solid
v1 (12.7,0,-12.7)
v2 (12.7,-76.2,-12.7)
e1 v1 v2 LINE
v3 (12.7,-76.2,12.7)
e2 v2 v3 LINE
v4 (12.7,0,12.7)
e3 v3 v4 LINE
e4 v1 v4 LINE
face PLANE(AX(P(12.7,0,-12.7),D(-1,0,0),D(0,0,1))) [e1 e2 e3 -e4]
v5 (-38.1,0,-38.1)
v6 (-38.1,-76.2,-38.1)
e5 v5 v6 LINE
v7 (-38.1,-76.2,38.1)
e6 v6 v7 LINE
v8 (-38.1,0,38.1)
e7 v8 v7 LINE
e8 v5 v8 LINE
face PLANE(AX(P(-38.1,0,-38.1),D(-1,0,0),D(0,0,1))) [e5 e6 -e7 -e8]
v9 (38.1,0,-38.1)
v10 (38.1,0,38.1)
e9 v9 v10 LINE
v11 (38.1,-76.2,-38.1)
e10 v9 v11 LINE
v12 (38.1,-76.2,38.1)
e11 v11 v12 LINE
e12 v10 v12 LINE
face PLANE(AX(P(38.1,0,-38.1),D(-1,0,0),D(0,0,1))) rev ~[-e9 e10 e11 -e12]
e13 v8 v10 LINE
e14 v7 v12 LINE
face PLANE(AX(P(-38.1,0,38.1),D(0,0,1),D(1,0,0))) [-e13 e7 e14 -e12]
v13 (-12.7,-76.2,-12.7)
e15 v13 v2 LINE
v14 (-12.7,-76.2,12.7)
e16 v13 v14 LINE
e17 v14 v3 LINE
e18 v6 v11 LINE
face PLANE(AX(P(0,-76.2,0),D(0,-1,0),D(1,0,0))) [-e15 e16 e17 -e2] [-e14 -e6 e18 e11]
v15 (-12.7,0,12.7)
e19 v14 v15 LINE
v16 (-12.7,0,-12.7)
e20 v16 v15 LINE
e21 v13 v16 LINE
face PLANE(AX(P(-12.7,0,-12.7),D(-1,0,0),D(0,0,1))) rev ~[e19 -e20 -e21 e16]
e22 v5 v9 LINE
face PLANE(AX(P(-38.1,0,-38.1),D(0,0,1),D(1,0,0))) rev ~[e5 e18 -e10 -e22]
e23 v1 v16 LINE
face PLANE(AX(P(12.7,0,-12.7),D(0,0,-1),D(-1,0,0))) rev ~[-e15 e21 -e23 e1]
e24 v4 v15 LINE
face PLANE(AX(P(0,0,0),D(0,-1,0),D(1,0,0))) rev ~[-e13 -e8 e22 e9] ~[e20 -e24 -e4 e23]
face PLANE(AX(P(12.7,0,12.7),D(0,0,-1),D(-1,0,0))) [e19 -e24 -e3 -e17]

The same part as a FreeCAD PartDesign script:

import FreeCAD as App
import Part
import Sketcher
from FreeCAD import Vector
Q = App.Units.Quantity

doc = App.newDocument("Part")
body = doc.addObject("PartDesign::Body", "Body")

sketch1 = body.newObject("Sketcher::SketchObject", "Sketch")
sketch1.AttachmentSupport = (doc.getObject("XZ_Plane"), [""])
sketch1.MapMode = "FlatFace"
sketch1.addGeometry([
    Part.LineSegment(Vector(-38, 38, 0), Vector(-38, -38, 0)),
    Part.LineSegment(Vector(-38, -38, 0), Vector(38, -38, 0)),
    Part.LineSegment(Vector(38, -38, 0), Vector(38, 38, 0)),
    Part.LineSegment(Vector(38, 38, 0), Vector(-38, 38, 0)),
], False)
sketch1.addConstraint([
    Sketcher.Constraint("Coincident", 0, 2, 1, 1),
    Sketcher.Constraint("Coincident", 1, 2, 2, 1),
    Sketcher.Constraint("Coincident", 2, 2, 3, 1),
    Sketcher.Constraint("Coincident", 3, 2, 0, 1),
    Sketcher.Constraint("Vertical", 0),
    Sketcher.Constraint("Horizontal", 1),
    Sketcher.Constraint("Vertical", 2),
    Sketcher.Constraint("Horizontal", 3),
    Sketcher.Constraint("Symmetric", 0, 2, 2, 2, -1, 1),
    Sketcher.Constraint("Equal", 3, 0),
    Sketcher.Constraint("DistanceX", 1, 1, 1, 2, Q("3 in")),
])
pad1 = body.newObject("PartDesign::Pad", "Pad")
pad1.Profile = sketch1
pad1.Length = Q("3 in")

sketch2 = body.newObject("Sketcher::SketchObject", "Sketch001")
sketch2.AttachmentSupport = (doc.getObject("XZ_Plane"), [""])
sketch2.MapMode = "FlatFace"
sketch2.addGeometry([
    Part.LineSegment(Vector(13, 13, 0), Vector(13, -13, 0)),
    Part.LineSegment(Vector(13, -13, 0), Vector(-13, -13, 0)),
    Part.LineSegment(Vector(-13, -13, 0), Vector(-13, 13, 0)),
    Part.LineSegment(Vector(-13, 13, 0), Vector(13, 13, 0)),
], False)
sketch2.addConstraint([
    Sketcher.Constraint("Coincident", 0, 2, 1, 1),
    Sketcher.Constraint("Coincident", 1, 2, 2, 1),
    Sketcher.Constraint("Coincident", 2, 2, 3, 1),
    Sketcher.Constraint("Coincident", 3, 2, 0, 1),
    Sketcher.Constraint("Vertical", 0),
    Sketcher.Constraint("Horizontal", 1),
    Sketcher.Constraint("Vertical", 2),
    Sketcher.Constraint("Horizontal", 3),
    Sketcher.Constraint("Symmetric", 0, 2, 2, 2, -1, 1),
    Sketcher.Constraint("Equal", 3, 0),
    Sketcher.Constraint("DistanceX", 1, 2, 1, 1, Q("1 in")),
])
pocket1 = body.newObject("PartDesign::Pocket", "Pocket")
pocket1.Profile = sketch2
pocket1.Length = Q("1 in")
pocket1.Reversed = True

sketch3 = body.newObject("Sketcher::SketchObject", "Sketch002")
sketch3.AttachmentSupport = (doc.getObject("XZ_Plane"), [""])
sketch3.MapMode = "FlatFace"
sketch3.AttachmentOffset = App.Placement(Vector(0, 0, 1 * 25.4), App.Rotation())
sketch3.addGeometry([
    Part.LineSegment(Vector(13, 13, 0), Vector(13, -13, 0)),
    Part.LineSegment(Vector(13, -13, 0), Vector(-13, -13, 0)),
    Part.LineSegment(Vector(-13, -13, 0), Vector(-13, 13, 0)),
    Part.LineSegment(Vector(-13, 13, 0), Vector(13, 13, 0)),
], False)
sketch3.addConstraint([
    Sketcher.Constraint("Coincident", 0, 2, 1, 1),
    Sketcher.Constraint("Coincident", 1, 2, 2, 1),
    Sketcher.Constraint("Coincident", 2, 2, 3, 1),
    Sketcher.Constraint("Coincident", 3, 2, 0, 1),
    Sketcher.Constraint("Vertical", 0),
    Sketcher.Constraint("Horizontal", 1),
    Sketcher.Constraint("Vertical", 2),
    Sketcher.Constraint("Horizontal", 3),
    Sketcher.Constraint("Symmetric", 0, 2, 2, 2, -1, 1),
    Sketcher.Constraint("Equal", 3, 0),
    Sketcher.Constraint("DistanceX", 1, 2, 1, 1, Q("1 in")),
])
pocket2 = body.newObject("PartDesign::Pocket", "Pocket001")
pocket2.Profile = sketch3
pocket2.Length = Q("1 in")
pocket2.Reversed = True

sketch4 = body.newObject("Sketcher::SketchObject", "Sketch003")
sketch4.AttachmentSupport = (doc.getObject("XZ_Plane"), [""])
sketch4.MapMode = "FlatFace"
sketch4.AttachmentOffset = App.Placement(Vector(0, 0, 3 * 25.4), App.Rotation())
sketch4.addGeometry([
    Part.LineSegment(Vector(-13, 13, 0), Vector(-13, -13, 0)),
    Part.LineSegment(Vector(-13, -13, 0), Vector(13, -13, 0)),
    Part.LineSegment(Vector(13, -13, 0), Vector(13, 13, 0)),
    Part.LineSegment(Vector(13, 13, 0), Vector(-13, 13, 0)),
], False)
sketch4.addConstraint([
    Sketcher.Constraint("Coincident", 0, 2, 1, 1),
    Sketcher.Constraint("Coincident", 1, 2, 2, 1),
    Sketcher.Constraint("Coincident", 2, 2, 3, 1),
    Sketcher.Constraint("Coincident", 3, 2, 0, 1),
    Sketcher.Constraint("Vertical", 0),
    Sketcher.Constraint("Horizontal", 1),
    Sketcher.Constraint("Vertical", 2),
    Sketcher.Constraint("Horizontal", 3),
    Sketcher.Constraint("Symmetric", 0, 2, 2, 2, -1, 1),
    Sketcher.Constraint("Equal", 3, 0),
    Sketcher.Constraint("DistanceX", 1, 1, 1, 2, Q("1 in")),
])
pocket3 = body.newObject("PartDesign::Pocket", "Pocket002")
pocket3.Profile = sketch4
pocket3.Length = Q("1 in")

doc.recompute()
